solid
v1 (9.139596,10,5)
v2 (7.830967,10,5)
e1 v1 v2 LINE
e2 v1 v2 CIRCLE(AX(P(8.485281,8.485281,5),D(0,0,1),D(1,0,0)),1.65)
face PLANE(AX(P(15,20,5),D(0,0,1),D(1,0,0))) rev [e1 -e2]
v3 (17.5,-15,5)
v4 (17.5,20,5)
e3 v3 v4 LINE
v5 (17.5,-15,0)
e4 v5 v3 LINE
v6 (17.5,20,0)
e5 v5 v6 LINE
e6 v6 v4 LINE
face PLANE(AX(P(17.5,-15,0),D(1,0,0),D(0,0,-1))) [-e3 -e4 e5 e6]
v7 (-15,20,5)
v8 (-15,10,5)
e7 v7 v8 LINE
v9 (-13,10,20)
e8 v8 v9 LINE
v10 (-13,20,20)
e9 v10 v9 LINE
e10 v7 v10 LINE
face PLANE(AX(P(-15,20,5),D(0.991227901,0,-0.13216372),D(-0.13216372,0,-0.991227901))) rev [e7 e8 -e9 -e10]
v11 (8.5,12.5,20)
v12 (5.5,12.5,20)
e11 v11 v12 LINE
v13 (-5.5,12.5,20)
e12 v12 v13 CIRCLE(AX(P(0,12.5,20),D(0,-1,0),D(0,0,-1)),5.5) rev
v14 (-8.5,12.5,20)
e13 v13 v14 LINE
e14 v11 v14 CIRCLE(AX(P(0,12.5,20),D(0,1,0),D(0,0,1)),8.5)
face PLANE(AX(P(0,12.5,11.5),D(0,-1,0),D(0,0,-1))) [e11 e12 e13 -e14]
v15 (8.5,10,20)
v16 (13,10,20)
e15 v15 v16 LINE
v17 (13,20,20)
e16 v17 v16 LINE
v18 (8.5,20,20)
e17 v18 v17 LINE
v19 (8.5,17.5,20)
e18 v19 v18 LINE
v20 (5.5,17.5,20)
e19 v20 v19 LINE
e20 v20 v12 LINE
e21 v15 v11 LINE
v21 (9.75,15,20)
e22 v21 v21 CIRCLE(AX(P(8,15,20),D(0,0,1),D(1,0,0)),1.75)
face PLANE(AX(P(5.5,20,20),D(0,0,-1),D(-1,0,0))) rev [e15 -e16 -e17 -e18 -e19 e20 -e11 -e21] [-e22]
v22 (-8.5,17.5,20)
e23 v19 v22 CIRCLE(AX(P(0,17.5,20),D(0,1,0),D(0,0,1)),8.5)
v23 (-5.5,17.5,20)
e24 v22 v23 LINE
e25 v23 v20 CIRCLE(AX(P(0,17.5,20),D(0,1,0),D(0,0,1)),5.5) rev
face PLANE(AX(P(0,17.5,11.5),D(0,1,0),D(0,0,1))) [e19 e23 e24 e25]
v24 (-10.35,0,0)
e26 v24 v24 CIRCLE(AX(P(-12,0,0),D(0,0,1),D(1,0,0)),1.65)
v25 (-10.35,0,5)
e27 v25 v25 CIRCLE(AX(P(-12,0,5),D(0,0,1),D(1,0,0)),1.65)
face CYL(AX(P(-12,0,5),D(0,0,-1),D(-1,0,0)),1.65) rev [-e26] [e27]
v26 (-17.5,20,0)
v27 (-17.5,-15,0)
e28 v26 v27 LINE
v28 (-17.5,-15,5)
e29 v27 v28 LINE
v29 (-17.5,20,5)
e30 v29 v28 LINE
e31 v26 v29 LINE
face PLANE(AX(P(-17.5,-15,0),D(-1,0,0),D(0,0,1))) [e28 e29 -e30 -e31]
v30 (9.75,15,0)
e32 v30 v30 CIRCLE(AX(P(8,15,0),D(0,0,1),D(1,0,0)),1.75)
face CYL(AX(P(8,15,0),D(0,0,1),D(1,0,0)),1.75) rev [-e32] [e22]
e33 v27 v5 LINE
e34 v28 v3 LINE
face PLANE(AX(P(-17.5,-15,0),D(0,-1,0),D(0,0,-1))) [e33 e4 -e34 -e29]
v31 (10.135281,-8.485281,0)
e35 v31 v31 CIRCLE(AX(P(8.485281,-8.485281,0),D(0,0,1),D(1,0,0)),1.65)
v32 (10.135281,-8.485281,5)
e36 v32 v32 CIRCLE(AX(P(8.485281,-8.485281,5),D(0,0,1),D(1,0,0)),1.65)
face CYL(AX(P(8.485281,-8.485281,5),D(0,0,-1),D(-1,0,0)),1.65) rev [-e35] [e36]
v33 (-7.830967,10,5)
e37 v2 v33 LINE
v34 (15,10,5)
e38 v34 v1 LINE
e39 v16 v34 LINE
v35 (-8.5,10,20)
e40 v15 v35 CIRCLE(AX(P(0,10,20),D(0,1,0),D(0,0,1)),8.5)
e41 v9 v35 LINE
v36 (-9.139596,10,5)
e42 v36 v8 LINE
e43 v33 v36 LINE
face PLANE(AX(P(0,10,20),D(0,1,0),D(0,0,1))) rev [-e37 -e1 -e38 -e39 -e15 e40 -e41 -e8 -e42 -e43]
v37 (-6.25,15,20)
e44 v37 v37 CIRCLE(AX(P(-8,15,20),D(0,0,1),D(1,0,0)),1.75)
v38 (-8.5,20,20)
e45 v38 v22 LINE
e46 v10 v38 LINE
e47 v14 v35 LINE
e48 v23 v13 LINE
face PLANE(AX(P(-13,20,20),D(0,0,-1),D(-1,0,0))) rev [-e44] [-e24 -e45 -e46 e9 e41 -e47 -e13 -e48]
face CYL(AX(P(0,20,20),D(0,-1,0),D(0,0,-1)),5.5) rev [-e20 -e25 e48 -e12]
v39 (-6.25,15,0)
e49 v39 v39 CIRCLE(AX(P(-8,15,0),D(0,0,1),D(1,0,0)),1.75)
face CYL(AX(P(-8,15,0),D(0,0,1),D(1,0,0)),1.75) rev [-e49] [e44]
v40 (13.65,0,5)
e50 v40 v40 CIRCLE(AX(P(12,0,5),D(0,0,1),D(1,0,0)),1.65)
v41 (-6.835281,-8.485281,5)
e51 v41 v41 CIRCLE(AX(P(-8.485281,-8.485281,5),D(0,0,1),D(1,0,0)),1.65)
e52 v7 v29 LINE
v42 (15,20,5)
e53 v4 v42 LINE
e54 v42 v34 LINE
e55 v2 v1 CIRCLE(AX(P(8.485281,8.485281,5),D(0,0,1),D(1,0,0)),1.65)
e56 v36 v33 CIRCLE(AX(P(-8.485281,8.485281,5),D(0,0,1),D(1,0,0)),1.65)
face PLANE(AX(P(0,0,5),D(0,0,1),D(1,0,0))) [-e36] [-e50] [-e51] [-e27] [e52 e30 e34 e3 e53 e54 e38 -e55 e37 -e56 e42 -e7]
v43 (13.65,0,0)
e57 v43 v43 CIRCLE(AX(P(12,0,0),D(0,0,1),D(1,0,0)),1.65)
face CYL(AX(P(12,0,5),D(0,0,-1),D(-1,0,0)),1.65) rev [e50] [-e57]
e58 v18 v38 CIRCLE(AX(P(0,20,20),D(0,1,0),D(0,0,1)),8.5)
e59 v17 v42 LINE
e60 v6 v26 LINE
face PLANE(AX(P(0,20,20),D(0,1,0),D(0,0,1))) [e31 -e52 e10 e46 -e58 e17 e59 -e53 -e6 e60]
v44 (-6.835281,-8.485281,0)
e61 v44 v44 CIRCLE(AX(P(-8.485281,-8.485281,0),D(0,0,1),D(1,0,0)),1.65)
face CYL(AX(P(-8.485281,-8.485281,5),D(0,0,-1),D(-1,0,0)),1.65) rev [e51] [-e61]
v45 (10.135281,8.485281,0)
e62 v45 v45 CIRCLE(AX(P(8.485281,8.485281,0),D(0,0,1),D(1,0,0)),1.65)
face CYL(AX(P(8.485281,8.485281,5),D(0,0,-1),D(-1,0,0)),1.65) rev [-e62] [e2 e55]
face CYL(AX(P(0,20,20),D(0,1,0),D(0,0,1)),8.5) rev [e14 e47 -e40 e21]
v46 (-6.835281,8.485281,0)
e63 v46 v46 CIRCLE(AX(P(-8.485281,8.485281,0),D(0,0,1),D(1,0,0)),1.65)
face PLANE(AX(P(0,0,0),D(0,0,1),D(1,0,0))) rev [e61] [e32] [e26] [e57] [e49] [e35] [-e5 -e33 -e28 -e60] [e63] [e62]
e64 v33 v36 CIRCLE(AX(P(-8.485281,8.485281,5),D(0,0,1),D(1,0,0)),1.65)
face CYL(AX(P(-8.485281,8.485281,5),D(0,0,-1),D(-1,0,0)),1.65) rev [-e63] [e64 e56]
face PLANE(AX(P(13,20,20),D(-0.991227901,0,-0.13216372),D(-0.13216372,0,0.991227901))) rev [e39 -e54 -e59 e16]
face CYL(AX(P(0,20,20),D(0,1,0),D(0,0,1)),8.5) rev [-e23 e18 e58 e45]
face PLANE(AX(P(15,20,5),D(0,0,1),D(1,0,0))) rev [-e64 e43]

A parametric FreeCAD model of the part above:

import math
import FreeCAD as App
import Part
import Sketcher
from FreeCAD import Vector

doc = App.newDocument("Part")
params = doc.addObject("Spreadsheet::Sheet", "Params")
for row, (alias, value) in enumerate([
    ("sketch1_diameter", "3.3 mm"),
    ("sketch1_width", "50 mm"),
    ("pad1_length", "5 mm"),
    ("sketch2_radius", "5.5 mm"),
    ("sketch2_width", "30 mm"),
    ("sketch2_width2", "7.5 mm"),
    ("pad2_length", "10 mm"),
    ("sketch3_width", "10 mm"),
    ("sketch3_width2", "2.5 mm"),
    ("sketch3_height", "8.5 mm"),
    ("groove_angle", "360 deg"),
    ("sketch4_width", "50 mm"),
    ("sketch4_width2", "35 mm"),
    ("sketch5_diameter", "3.5 mm"),
], start=1):
    params.set(f"A{row}", alias)
    params.set(f"B{row}", "=" + value)
    params.setAlias(f"B{row}", alias)

body = doc.addObject("PartDesign::Body", "Body")

# Sketch on XY plane
sketch1 = body.newObject("Sketcher::SketchObject", "Sketch")
sketch1.AttachmentSupport = (doc.getObject("XY_Plane"), [""])
sketch1.MapMode = "FlatFace"
sketch1.addGeometry([
    Part.LineSegment(Vector(-25, 25, 0), Vector(-25, -25, 0)),  # 0
    Part.LineSegment(Vector(-25, -25, 0), Vector(25, -25, 0)),  # 1
    Part.LineSegment(Vector(25, -25, 0), Vector(25, 25, 0)),  # 2
    Part.LineSegment(Vector(25, 25, 0), Vector(-25, 25, 0)),  # 3
    Part.Circle(Vector(-8.5, -8.5, 0), Vector(0, 0, 1), 1.6),  # 4
    Part.Circle(Vector(8.5, -8.5, 0), Vector(0, 0, 1), 1.6),  # 5
    Part.Circle(Vector(-12, 0, 0), Vector(0, 0, 1), 1.6),  # 6
    Part.Circle(Vector(-8.5, 8.5, 0), Vector(0, 0, 1), 1.6),  # 7
    Part.Circle(Vector(12, 0, 0), Vector(0, 0, 1), 1.6),  # 8
    Part.Circle(Vector(8.5, 8.5, 0), Vector(0, 0, 1), 1.6),  # 9
], False)
sketch1.addConstraint([
    Sketcher.Constraint("Coincident", 0, 2, 1, 1),
    Sketcher.Constraint("Coincident", 1, 2, 2, 1),
    Sketcher.Constraint("Coincident", 2, 2, 3, 1),
    Sketcher.Constraint("Coincident", 3, 2, 0, 1),
    Sketcher.Constraint("Vertical", 0),
    Sketcher.Constraint("Horizontal", 1),
    Sketcher.Constraint("Vertical", 2),
    Sketcher.Constraint("Horizontal", 3),
    Sketcher.Constraint("Equal", 4, 5),
    Sketcher.Constraint("Equal", 5, 6),
    Sketcher.Constraint("Equal", 6, 7),
    Sketcher.Constraint("Equal", 7, 8),
    Sketcher.Constraint("Equal", 8, 9),
    Sketcher.Constraint("Symmetric", 5, 3, 7, 3, -1, 1),
    Sketcher.Constraint("Symmetric", 6, 3, 8, 3, -1, 1),
    Sketcher.Constraint("Symmetric", 4, 3, 9, 3, -1, 1),
    Sketcher.Constraint("Symmetric", 0, 2, 2, 2, -1, 1),
    Sketcher.Constraint("Symmetric", 4, 3, 5, 3, -2),
    Sketcher.Constraint("PointOnObject", 6, 3, -1),
    Sketcher.Constraint("Equal", 3, 0),
    Sketcher.Constraint("Diameter", 4, 3.3),
    Sketcher.Constraint("DistanceX", 1, 1, 1, 2, 50.0),
    Sketcher.Constraint("DistanceX", 6, 3, -1, 1, 12.0),
    Sketcher.Constraint("DistanceX", 4, 3, -1, 1, 8.485281),
    Sketcher.Constraint("DistanceY", 4, 3, -1, 1, 8.485281),
])
sketch1.setExpression("Constraints[20]", "Params.sketch1_diameter")
sketch1.setExpression("Constraints[21]", "Params.sketch1_width")
pad1 = body.newObject("PartDesign::Pad", "Pad")
pad1.Profile = sketch1
pad1.setExpression("Length", "Params.pad1_length")

# Sketch on XZ plane
sketch2 = body.newObject("Sketcher::SketchObject", "Sketch001")
sketch2.AttachmentSupport = (doc.getObject("XZ_Plane"), [""])
sketch2.MapMode = "FlatFace"
sketch2.AttachmentOffset = App.Placement(Vector(0, 0, -15), App.Rotation())
sketch2.addGeometry([
    Part.LineSegment(Vector(13, 20, 0), Vector(15, 5, 0)),  # 0
    Part.LineSegment(Vector(15, 5, 0), Vector(-15, 5, 0)),  # 1
    Part.LineSegment(Vector(-15, 5, 0), Vector(-13, 20, 0)),  # 2
    Part.LineSegment(Vector(-13, 20, 0), Vector(-6, 20, 0)),  # 3
    Part.ArcOfCircle(Part.Circle(Vector(0, 20, 0), Vector(0, 0, 1), 6), math.radians(180), math.radians(360)),  # 4
    Part.LineSegment(Vector(6, 20, 0), Vector(13, 20, 0)),  # 5
], False)
sketch2.addConstraint([
    Sketcher.Constraint("Coincident", 0, 2, 1, 1),
    Sketcher.Constraint("Coincident", 1, 2, 2, 1),
    Sketcher.Constraint("Coincident", 2, 2, 3, 1),
    Sketcher.Constraint("Coincident", 3, 2, 4, 1),
    Sketcher.Constraint("Coincident", 4, 2, 5, 1),
    Sketcher.Constraint("Coincident", 5, 2, 0, 1),
    Sketcher.Constraint("Horizontal", 1),
    Sketcher.Constraint("Horizontal", 3),
    Sketcher.Constraint("Horizontal", 5),
    Sketcher.Constraint("Symmetric", 3, 2, 4, 2, -2),
    Sketcher.Constraint("Horizontal", 4, 3, 2, 2),
    Sketcher.Constraint("Equal", 3, 5),
    Sketcher.Constraint("Equal", 0, 2),
    Sketcher.Constraint("Radius", 4, 5.5),
    Sketcher.Constraint("DistanceX", 1, 2, 1, 1, 30.0),
    Sketcher.Constraint("DistanceX", 3, 1, 3, 2, 7.5),
    Sketcher.Constraint("DistanceY", -1, 1, 4, 3, 20.0),
    Sketcher.Constraint("DistanceY", -1, 1, 0, 2, 5.0),
])
sketch2.setExpression("Constraints[13]", "Params.sketch2_radius")
sketch2.setExpression("Constraints[14]", "Params.sketch2_width")
sketch2.setExpression("Constraints[15]", "Params.sketch2_width2")
pad2 = body.newObject("PartDesign::Pad", "Pad001")
pad2.Profile = sketch2
pad2.setExpression("Length", "Params.pad2_length")
pad2.Midplane = True

# Sketch on YZ plane
sketch3 = body.newObject("Sketcher::SketchObject", "Sketch002")
sketch3.AttachmentSupport = (doc.getObject("YZ_Plane"), [""])
sketch3.MapMode = "FlatFace"
sketch3.addGeometry([
    Part.LineSegment(Vector(20, 20, 0), Vector(17.5, 20, 0)),  # 0
    Part.LineSegment(Vector(17.5, 20, 0), Vector(17.5, 11.5, 0)),  # 1
    Part.LineSegment(Vector(17.5, 11.5, 0), Vector(20, 11.5, 0)),  # 2
    Part.LineSegment(Vector(20, 11.5, 0), Vector(20, 20, 0)),  # 3
    Part.LineSegment(Vector(12.5, 20, 0), Vector(10, 20, 0)),  # 4
    Part.LineSegment(Vector(10, 20, 0), Vector(10, 11.5, 0)),  # 5
    Part.LineSegment(Vector(10, 11.5, 0), Vector(12.5, 11.5, 0)),  # 6
    Part.LineSegment(Vector(12.5, 11.5, 0), Vector(12.5, 20, 0)),  # 7
], False)
sketch3.addGeometry(Part.LineSegment(Vector(20, 20, 0), Vector(10, 20, 0)), True)  # axis
sketch3.addConstraint([
    Sketcher.Constraint("Coincident", 0, 2, 1, 1),
    Sketcher.Constraint("Coincident", 1, 2, 2, 1),
    Sketcher.Constraint("Coincident", 2, 2, 3, 1),
    Sketcher.Constraint("Coincident", 3, 2, 0, 1),
    Sketcher.Constraint("Coincident", 4, 2, 5, 1),
    Sketcher.Constraint("Coincident", 5, 2, 6, 1),
    Sketcher.Constraint("Coincident", 6, 2, 7, 1),
    Sketcher.Constraint("Coincident", 7, 2, 4, 1),
    Sketcher.Constraint("Horizontal", 0),
    Sketcher.Constraint("Vertical", 1),
    Sketcher.Constraint("Horizontal", 2),
    Sketcher.Constraint("Vertical", 3),
    Sketcher.Constraint("Horizontal", 4),
    Sketcher.Constraint("Vertical", 5),
    Sketcher.Constraint("Horizontal", 6),
    Sketcher.Constraint("Vertical", 7),
    Sketcher.Constraint("Horizontal", 8),
    Sketcher.Constraint("Coincident", 8, 1, 3, 2),
    Sketcher.Constraint("Coincident", 8, 2, 4, 2),
    Sketcher.Constraint("Horizontal", 2, 2, 5, 2),
    Sketcher.Constraint("Equal", 2, 4),
    Sketcher.Constraint("DistanceX", 8, 2, 8, 1, 10.0),
    Sketcher.Constraint("DistanceX", 0, 2, 0, 1, 2.5),
    Sketcher.Constraint("DistanceY", 1, 2, 1, 1, 8.5),
    Sketcher.Constraint("DistanceY", -1, 1, 0, 2, 20.0),
    Sketcher.Constraint("DistanceX", -1, 1, 2, 2, 20.0),
])
sketch3.setExpression("Constraints[21]", "Params.sketch3_width")
sketch3.setExpression("Constraints[22]", "Params.sketch3_width2")
sketch3.setExpression("Constraints[23]", "Params.sketch3_height")
groove = body.newObject("PartDesign::Groove", "Groove")
groove.Profile = sketch3
groove.ReferenceAxis = (sketch3, ["Axis0"])
groove.setExpression("Angle", "Params.groove_angle")

# Sketch on XY plane
sketch4 = body.newObject("Sketcher::SketchObject", "Sketch003")
sketch4.AttachmentSupport = (doc.getObject("XY_Plane"), [""])
sketch4.MapMode = "FlatFace"
sketch4.AttachmentOffset = App.Placement(Vector(0, 0, 5), App.Rotation())
sketch4.addGeometry([
    Part.LineSegment(Vector(-25, 25, 0), Vector(-25, -25, 0)),  # 0
    Part.LineSegment(Vector(-25, -25, 0), Vector(25, -25, 0)),  # 1
    Part.LineSegment(Vector(25, -25, 0), Vector(25, 25, 0)),  # 2
    Part.LineSegment(Vector(25, 25, 0), Vector(-25, 25, 0)),  # 3
    Part.LineSegment(Vector(18, -15, 0), Vector(-18, -15, 0)),  # 4
    Part.LineSegment(Vector(-18, -15, 0), Vector(-18, 20, 0)),  # 5
    Part.LineSegment(Vector(-18, 20, 0), Vector(18, 20, 0)),  # 6
    Part.LineSegment(Vector(18, 20, 0), Vector(18, -15, 0)),  # 7
], False)
sketch4.addConstraint([
    Sketcher.Constraint("Coincident", 0, 2, 1, 1),
    Sketcher.Constraint("Coincident", 1, 2, 2, 1),
    Sketcher.Constraint("Coincident", 2, 2, 3, 1),
    Sketcher.Constraint("Coincident", 3, 2, 0, 1),
    Sketcher.Constraint("Coincident", 4, 2, 5, 1),
    Sketcher.Constraint("Coincident", 5, 2, 6, 1),
    Sketcher.Constraint("Coincident", 6, 2, 7, 1),
    Sketcher.Constraint("Coincident", 7, 2, 4, 1),
    Sketcher.Constraint("Vertical", 0),
    Sketcher.Constraint("Horizontal", 1),
    Sketcher.Constraint("Vertical", 2),
    Sketcher.Constraint("Horizontal", 3),
    Sketcher.Constraint("Horizontal", 4),
    Sketcher.Constraint("Vertical", 5),
    Sketcher.Constraint("Horizontal", 6),
    Sketcher.Constraint("Vertical", 7),
    Sketcher.Constraint("Symmetric", 0, 2, 2, 2, -1, 1),
    Sketcher.Constraint("Equal", 3, 0),
    Sketcher.Constraint("Equal", 6, 5),
    Sketcher.Constraint("DistanceX", 1, 1, 1, 2, 50.0),
    Sketcher.Constraint("DistanceX", 4, 2, 4, 1, 35.0),
    Sketcher.Constraint("DistanceY", 4, 2, -1, 1, 15.0),
    Sketcher.Constraint("DistanceX", 4, 2, -1, 1, 17.5),
])
sketch4.setExpression("Constraints[19]", "Params.sketch4_width")
sketch4.setExpression("Constraints[20]", "Params.sketch4_width2")
pocket1 = body.newObject("PartDesign::Pocket", "Pocket")
pocket1.Profile = sketch4
pocket1.Type = "ThroughAll"
pocket1.Midplane = True

# Sketch on XY plane
sketch5 = body.newObject("Sketcher::SketchObject", "Sketch004")
sketch5.AttachmentSupport = (doc.getObject("XY_Plane"), [""])
sketch5.MapMode = "FlatFace"
sketch5.AttachmentOffset = App.Placement(Vector(0, 0, 20), App.Rotation())
sketch5.addGeometry([
    Part.Circle(Vector(-8, 15, 0), Vector(0, 0, 1), 1.8),
    Part.Circle(Vector(8, 15, 0), Vector(0, 0, 1), 1.8),
], False)
sketch5.addConstraint([
    Sketcher.Constraint("Equal", 0, 1),
    Sketcher.Constraint("Symmetric", 0, 3, 1, 3, -2),
    Sketcher.Constraint("Diameter", 0, 3.5),
    Sketcher.Constraint("DistanceX", 0, 3, -1, 1, 8.0),
    Sketcher.Constraint("DistanceY", -1, 1, 0, 3, 15.0),
])
sketch5.setExpression("Constraints[2]", "Params.sketch5_diameter")
pocket2 = body.newObject("PartDesign::Pocket", "Pocket001")
pocket2.Profile = sketch5
pocket2.Type = "ThroughAll"

doc.recompute()
